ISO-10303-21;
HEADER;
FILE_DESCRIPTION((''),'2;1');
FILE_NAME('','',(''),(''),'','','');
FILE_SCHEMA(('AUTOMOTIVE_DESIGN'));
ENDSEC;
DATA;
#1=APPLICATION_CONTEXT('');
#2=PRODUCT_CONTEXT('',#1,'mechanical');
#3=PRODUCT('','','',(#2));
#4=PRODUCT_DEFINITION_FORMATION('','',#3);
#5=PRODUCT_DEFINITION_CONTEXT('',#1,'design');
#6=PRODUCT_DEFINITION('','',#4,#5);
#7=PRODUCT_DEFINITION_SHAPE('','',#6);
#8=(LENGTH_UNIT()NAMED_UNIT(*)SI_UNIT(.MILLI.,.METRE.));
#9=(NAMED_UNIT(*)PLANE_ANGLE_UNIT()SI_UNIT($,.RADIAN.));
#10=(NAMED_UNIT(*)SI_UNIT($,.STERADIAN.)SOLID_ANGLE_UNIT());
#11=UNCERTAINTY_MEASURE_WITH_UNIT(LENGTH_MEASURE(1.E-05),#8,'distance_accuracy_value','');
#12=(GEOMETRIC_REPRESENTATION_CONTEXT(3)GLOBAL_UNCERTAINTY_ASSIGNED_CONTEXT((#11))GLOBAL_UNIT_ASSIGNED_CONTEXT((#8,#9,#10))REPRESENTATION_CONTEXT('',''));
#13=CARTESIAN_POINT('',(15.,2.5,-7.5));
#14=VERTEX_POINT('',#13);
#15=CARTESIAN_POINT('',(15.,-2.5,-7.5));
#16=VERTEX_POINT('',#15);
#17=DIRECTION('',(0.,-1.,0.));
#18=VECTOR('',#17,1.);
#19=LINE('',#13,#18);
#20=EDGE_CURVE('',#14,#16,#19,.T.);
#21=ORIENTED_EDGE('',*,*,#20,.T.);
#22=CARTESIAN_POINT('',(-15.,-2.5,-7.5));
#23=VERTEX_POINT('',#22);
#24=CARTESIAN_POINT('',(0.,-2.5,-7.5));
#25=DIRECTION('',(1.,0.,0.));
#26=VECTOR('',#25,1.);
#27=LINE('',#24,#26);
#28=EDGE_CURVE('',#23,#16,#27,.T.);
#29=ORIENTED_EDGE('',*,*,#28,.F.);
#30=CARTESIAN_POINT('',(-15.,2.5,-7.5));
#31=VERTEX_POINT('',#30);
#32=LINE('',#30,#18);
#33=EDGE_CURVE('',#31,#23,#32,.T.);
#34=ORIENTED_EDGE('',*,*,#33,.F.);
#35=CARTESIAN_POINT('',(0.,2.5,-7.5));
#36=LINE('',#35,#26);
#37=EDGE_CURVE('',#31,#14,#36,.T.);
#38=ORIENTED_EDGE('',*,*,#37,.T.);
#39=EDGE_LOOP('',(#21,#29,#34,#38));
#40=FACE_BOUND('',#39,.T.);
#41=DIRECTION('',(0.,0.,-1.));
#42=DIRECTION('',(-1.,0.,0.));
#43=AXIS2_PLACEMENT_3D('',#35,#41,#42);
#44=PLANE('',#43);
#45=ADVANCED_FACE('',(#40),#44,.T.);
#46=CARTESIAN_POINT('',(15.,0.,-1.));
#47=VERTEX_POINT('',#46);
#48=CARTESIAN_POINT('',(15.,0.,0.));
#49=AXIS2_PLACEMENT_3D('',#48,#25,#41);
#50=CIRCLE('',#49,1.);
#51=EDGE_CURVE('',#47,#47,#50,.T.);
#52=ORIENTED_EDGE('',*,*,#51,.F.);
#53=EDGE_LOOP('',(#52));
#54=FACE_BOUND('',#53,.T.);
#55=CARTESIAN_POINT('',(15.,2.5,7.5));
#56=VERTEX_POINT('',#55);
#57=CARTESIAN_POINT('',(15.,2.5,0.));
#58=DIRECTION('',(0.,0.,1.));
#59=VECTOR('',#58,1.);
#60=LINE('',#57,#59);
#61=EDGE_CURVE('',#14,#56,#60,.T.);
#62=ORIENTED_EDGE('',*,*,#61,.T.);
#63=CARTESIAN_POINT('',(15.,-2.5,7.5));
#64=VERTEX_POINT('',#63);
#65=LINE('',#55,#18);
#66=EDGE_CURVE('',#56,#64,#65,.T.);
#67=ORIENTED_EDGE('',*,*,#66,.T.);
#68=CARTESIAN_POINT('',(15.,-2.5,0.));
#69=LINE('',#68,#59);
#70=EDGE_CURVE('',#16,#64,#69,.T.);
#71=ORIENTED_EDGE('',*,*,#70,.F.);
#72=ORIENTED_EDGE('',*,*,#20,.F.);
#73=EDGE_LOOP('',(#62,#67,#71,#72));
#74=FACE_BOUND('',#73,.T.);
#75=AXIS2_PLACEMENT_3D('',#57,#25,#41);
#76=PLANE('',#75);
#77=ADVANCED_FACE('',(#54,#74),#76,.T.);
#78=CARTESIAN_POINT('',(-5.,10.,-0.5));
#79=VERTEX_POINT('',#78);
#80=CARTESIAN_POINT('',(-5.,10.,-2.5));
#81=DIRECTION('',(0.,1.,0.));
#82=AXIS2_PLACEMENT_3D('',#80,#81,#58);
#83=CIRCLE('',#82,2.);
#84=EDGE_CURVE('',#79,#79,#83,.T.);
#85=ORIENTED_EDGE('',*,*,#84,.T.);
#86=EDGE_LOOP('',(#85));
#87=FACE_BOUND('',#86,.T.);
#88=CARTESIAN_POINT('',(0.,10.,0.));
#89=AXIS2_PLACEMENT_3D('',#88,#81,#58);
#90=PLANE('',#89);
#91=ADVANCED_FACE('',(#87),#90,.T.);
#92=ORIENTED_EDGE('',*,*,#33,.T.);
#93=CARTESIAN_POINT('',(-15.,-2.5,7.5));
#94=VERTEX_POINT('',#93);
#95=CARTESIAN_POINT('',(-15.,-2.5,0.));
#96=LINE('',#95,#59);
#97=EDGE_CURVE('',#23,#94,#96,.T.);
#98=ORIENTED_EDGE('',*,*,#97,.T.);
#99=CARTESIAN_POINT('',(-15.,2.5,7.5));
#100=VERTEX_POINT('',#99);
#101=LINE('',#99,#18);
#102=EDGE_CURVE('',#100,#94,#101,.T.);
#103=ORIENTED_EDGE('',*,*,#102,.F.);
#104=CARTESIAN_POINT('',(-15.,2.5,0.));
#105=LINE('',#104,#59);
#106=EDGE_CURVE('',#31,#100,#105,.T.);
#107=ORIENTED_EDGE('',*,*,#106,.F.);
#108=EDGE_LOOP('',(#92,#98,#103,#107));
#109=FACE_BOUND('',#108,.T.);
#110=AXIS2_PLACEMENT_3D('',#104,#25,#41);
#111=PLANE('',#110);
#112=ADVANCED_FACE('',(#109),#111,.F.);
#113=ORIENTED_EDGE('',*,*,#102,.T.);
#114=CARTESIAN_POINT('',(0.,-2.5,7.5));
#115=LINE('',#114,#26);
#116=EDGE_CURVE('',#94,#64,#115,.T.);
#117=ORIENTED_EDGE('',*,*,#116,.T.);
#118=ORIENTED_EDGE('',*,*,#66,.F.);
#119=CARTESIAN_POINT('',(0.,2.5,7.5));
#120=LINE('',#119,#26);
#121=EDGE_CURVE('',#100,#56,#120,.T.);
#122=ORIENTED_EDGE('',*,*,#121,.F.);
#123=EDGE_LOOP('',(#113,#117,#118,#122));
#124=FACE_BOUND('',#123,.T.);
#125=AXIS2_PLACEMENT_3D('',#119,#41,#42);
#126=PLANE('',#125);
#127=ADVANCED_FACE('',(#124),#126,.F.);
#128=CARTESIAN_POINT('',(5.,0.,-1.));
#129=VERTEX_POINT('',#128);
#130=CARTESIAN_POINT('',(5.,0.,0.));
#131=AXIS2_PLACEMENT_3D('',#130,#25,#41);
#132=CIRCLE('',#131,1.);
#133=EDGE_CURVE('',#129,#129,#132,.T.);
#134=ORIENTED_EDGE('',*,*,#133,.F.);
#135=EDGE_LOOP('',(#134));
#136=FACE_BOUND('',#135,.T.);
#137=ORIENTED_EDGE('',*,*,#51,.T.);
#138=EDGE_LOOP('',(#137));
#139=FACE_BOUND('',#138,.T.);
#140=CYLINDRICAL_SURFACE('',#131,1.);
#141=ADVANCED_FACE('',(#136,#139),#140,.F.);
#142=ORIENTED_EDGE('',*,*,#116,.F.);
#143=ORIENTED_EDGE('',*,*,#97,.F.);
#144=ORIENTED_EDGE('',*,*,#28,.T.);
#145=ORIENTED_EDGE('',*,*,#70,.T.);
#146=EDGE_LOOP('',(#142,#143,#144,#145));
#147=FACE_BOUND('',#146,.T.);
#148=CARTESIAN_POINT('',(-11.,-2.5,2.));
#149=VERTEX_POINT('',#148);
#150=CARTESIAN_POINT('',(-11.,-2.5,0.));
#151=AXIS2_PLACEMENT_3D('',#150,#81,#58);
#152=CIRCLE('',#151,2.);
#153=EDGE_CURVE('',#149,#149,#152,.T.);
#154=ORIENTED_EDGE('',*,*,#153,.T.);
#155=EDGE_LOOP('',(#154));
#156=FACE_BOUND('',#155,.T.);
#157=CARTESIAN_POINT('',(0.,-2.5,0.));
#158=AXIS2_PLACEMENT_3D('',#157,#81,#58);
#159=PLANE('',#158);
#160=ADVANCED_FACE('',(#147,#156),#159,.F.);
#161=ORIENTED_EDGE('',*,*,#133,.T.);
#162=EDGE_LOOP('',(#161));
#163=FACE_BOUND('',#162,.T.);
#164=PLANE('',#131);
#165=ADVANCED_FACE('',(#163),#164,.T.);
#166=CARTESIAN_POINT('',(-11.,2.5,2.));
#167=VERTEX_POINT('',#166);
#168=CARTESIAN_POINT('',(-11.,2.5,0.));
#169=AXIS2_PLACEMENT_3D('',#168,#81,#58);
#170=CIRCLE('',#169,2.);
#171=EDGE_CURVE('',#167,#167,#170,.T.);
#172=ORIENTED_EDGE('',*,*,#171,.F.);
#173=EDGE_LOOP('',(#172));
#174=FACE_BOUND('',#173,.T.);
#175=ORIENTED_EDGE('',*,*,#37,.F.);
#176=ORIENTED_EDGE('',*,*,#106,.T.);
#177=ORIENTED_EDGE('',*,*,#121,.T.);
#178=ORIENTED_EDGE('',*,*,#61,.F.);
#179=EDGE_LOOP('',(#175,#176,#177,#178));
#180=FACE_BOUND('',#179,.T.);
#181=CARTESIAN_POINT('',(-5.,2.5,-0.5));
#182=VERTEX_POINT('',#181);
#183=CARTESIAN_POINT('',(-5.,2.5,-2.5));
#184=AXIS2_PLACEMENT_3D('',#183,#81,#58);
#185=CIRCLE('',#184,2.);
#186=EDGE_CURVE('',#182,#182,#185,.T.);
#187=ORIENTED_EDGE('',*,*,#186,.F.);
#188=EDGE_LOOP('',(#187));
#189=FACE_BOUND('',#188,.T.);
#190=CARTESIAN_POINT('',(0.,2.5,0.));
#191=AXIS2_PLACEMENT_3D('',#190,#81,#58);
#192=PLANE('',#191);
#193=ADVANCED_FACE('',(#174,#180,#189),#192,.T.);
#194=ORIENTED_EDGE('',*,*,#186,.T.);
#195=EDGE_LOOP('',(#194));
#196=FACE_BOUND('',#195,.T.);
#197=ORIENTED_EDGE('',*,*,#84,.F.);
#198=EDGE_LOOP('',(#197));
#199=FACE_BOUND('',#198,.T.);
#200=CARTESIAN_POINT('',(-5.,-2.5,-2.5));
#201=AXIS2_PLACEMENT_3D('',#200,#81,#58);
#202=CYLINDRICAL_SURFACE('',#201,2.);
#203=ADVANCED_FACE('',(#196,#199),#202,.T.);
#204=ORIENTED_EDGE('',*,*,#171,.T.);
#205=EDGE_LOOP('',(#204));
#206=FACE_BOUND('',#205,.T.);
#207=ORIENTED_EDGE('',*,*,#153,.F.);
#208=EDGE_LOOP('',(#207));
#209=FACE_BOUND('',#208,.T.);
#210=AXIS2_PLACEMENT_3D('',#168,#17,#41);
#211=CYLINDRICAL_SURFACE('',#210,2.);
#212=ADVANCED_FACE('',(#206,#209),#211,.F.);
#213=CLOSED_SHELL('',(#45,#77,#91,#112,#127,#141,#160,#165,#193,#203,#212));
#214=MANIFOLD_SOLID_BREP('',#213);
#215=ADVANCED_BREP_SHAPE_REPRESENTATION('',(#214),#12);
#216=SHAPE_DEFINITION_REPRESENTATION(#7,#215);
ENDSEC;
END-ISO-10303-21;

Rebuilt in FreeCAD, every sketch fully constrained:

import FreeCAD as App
import Part
import Sketcher

V = App.Vector
Q = App.Units.Quantity

doc = App.newDocument("Part")
body = doc.addObject("PartDesign::Body", "Body")

# Sketch on XZ plane
sketch1 = doc.addObject("Sketcher::SketchObject", "Sketch")
body.addObject(sketch1)
sketch1.AttachmentSupport = (doc.XZ_Plane, [""])
sketch1.MapMode = "FlatFace"
sketch1.addGeometry([
    Part.LineSegment(V(-15, -7.5, 0), V(-15, 7.5, 0)),  # 0
    Part.LineSegment(V(-15, 7.5, 0), V(15, 7.5, 0)),  # 1
    Part.LineSegment(V(15, 7.5, 0), V(15, -7.5, 0)),  # 2
    Part.LineSegment(V(15, -7.5, 0), V(-15, -7.5, 0)),  # 3
    Part.Circle(V(-11, 0, 0), V(0, 0, 1), 2),  # 4
    Part.Circle(V(-5, -2.5, 0), V(0, 0, 1), 2),  # 5
], False)
sketch1.addConstraint([
    Sketcher.Constraint("Coincident", 0, 2, 1, 1),
    Sketcher.Constraint("Coincident", 1, 2, 2, 1),
    Sketcher.Constraint("Coincident", 2, 2, 3, 1),
    Sketcher.Constraint("Coincident", 3, 2, 0, 1),
    Sketcher.Constraint("Vertical", 0),
    Sketcher.Constraint("Horizontal", 1),
    Sketcher.Constraint("Vertical", 2),
    Sketcher.Constraint("Horizontal", 3),
    Sketcher.Constraint("Equal", 4, 5),
    Sketcher.Constraint("Symmetric", 0, 2, 2, 2, -1, 1),
    Sketcher.Constraint("PointOnObject", 4, 3, -1),
    Sketcher.Constraint("Diameter", 4, Q("4 mm")),
    Sketcher.Constraint("DistanceX", 1, 1, 1, 2, Q("30 mm")),
    Sketcher.Constraint("DistanceY", 0, 1, 0, 2, Q("15 mm")),
    Sketcher.Constraint("DistanceX", 4, 3, -1, 1, Q("11 mm")),
    Sketcher.Constraint("DistanceX", 5, 3, -1, 1, Q("5 mm")),
    Sketcher.Constraint("DistanceY", 5, 3, 0, 2, Q("10 mm")),
])
pad1 = doc.addObject("PartDesign::Pad", "Pad")
body.addObject(pad1)
pad1.Profile = sketch1
pad1.Length = 5
pad1.Midplane = True

# Sketch on XZ plane
sketch2 = doc.addObject("Sketcher::SketchObject", "Sketch001")
body.addObject(sketch2)
sketch2.AttachmentSupport = (doc.XZ_Plane, [""])
sketch2.MapMode = "FlatFace"
sketch2.addGeometry(Part.Circle(V(-5, -2.5, 0), V(0, 0, 1), 2), False)
sketch2.addConstraint([
    Sketcher.Constraint("Diameter", 0, Q("4 mm")),
    Sketcher.Constraint("DistanceX", 0, 3, -1, 1, Q("5 mm")),
    Sketcher.Constraint("DistanceY", 0, 3, -1, 1, Q("2.5 mm")),
])
pad2 = doc.addObject("PartDesign::Pad", "Pad001")
body.addObject(pad2)
pad2.Profile = sketch2
pad2.Type = "TwoLengths"
pad2.Length = 10
pad2.Length2 = 2.5
pad2.Reversed = True

# Sketch on YZ plane
sketch3 = doc.addObject("Sketcher::SketchObject", "Sketch002")
body.addObject(sketch3)
sketch3.AttachmentSupport = (doc.YZ_Plane, [""])
sketch3.MapMode = "FlatFace"
sketch3.AttachmentOffset = App.Placement(V(0, 0, 15), App.Rotation())
sketch3.addGeometry(Part.Circle(V(0, 0, 0), V(0, 0, 1), 1), False)
sketch3.addConstraint([
    Sketcher.Constraint("Coincident", 0, 3, -1, 1),
    Sketcher.Constraint("Diameter", 0, Q("2 mm")),
])
pocket1 = doc.addObject("PartDesign::Pocket", "Pocket")
body.addObject(pocket1)
pocket1.Profile = sketch3
pocket1.Length = 10

doc.recompute()
